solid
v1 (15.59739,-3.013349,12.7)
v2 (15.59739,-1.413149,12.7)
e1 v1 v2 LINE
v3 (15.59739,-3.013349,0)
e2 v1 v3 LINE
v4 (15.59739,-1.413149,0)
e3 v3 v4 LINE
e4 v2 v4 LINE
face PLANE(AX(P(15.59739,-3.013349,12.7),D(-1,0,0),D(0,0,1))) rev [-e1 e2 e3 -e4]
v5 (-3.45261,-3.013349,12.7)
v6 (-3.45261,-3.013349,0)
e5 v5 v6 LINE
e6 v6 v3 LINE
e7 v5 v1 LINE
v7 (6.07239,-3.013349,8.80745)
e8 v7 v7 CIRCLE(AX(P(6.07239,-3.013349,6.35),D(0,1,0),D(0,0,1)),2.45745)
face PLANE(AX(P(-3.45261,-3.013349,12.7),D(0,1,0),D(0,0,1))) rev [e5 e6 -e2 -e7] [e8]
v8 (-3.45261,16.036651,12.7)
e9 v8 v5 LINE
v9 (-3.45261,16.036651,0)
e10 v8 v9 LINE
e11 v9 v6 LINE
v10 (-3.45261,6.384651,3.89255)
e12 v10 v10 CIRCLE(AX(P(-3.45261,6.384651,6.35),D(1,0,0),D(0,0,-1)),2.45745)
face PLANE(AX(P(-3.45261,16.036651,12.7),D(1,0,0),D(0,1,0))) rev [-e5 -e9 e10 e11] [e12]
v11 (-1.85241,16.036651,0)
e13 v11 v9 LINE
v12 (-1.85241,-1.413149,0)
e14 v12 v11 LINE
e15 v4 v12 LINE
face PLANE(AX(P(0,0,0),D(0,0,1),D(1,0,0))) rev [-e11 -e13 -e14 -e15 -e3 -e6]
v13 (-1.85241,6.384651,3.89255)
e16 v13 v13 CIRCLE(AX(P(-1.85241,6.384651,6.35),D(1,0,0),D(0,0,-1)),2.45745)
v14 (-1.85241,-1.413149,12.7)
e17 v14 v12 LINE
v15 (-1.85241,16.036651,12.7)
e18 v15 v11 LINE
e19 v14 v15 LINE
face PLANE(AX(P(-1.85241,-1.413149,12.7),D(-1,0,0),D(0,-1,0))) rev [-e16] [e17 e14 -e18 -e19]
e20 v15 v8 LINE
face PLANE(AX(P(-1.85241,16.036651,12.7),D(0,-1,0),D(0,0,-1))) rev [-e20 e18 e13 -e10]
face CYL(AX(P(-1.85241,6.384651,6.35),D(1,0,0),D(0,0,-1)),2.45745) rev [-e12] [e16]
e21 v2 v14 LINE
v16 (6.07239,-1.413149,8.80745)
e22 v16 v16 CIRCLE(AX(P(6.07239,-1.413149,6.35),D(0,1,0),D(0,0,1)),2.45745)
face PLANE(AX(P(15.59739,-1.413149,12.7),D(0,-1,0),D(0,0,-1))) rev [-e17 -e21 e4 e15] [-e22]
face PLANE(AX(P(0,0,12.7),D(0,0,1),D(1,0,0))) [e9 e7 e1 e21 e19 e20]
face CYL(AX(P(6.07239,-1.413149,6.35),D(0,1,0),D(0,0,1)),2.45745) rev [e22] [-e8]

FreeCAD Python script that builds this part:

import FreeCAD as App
import Part
import Sketcher

V = App.Vector
Q = App.Units.Quantity

doc = App.newDocument("Part")
body = doc.addObject("PartDesign::Body", "Body")

# Sketch on XY plane
sketch1 = body.newObject("Sketcher::SketchObject", "Sketch")
sketch1.AttachmentSupport = (doc.getObject("XY_Plane"), [""])
sketch1.MapMode = "FlatFace"
sketch1.addGeometry(Part.LineSegment(V(-3.5, 16, 0), V(-3.5, -3, 0)), False)
sketch1.addGeometry(Part.LineSegment(V(-3.5, -3, 0), V(15.6, -3, 0)), False)
sketch1.addGeometry(Part.LineSegment(V(15.6, -3, 0), V(15.6, -1.4, 0)), False)
sketch1.addGeometry(Part.LineSegment(V(15.6, -1.4, 0), V(-1.9, -1.4, 0)), False)
sketch1.addGeometry(Part.LineSegment(V(-1.9, -1.4, 0), V(-1.9, 16, 0)), False)
sketch1.addGeometry(Part.LineSegment(V(-1.9, 16, 0), V(-3.5, 16, 0)), False)
sketch1.addConstraint(Sketcher.Constraint("Coincident", 0, 2, 1, 1))
sketch1.addConstraint(Sketcher.Constraint("Coincident", 1, 2, 2, 1))
sketch1.addConstraint(Sketcher.Constraint("Coincident", 2, 2, 3, 1))
sketch1.addConstraint(Sketcher.Constraint("Coincident", 3, 2, 4, 1))
sketch1.addConstraint(Sketcher.Constraint("Coincident", 4, 2, 5, 1))
sketch1.addConstraint(Sketcher.Constraint("Coincident", 5, 2, 0, 1))
sketch1.addConstraint(Sketcher.Constraint("Vertical", 0))
sketch1.addConstraint(Sketcher.Constraint("Horizontal", 1))
sketch1.addConstraint(Sketcher.Constraint("Vertical", 2))
sketch1.addConstraint(Sketcher.Constraint("Horizontal", 3))
sketch1.addConstraint(Sketcher.Constraint("Vertical", 4))
sketch1.addConstraint(Sketcher.Constraint("Horizontal", 5))
sketch1.addConstraint(Sketcher.Constraint("Equal", 1, 0))
sketch1.addConstraint(Sketcher.Constraint("Equal", 5, 2))
sketch1.addConstraint(Sketcher.Constraint("DistanceX", 1, 1, 1, 2, Q("0.75 in")))
sketch1.addConstraint(Sketcher.Constraint("DistanceX", 3, 2, 3, 1, Q("0.687 in")))
sketch1.addConstraint(Sketcher.Constraint("DistanceX", 0, 2, -1, 1, Q("3.45261 mm")))
sketch1.addConstraint(Sketcher.Constraint("DistanceY", 0, 2, -1, 1, Q("3.013349 mm")))
pad1 = body.newObject("PartDesign::Pad", "Pad")
pad1.Profile = sketch1
pad1.Length = Q("0.5 in")

# Sketch on XZ plane
sketch2 = body.newObject("Sketcher::SketchObject", "Sketch001")
sketch2.AttachmentSupport = (doc.getObject("XZ_Plane"), [""])
sketch2.MapMode = "FlatFace"
sketch2.AttachmentOffset = App.Placement(V(0, 0, 1.413149), App.Rotation())
sketch2.addGeometry(Part.Circle(V(6.1, 6.3, 0), V(0, 0, 1), 2.5), False)
sketch2.addConstraint(Sketcher.Constraint("Diameter", 0, Q("0.1935 in")))
sketch2.addConstraint(Sketcher.Constraint("DistanceY", -1, 1, 0, 3, Q("0.25 in")))
sketch2.addConstraint(Sketcher.Constraint("DistanceX", -1, 1, 0, 3, Q("6.07239 mm")))
doc.recompute()
hole = body.newObject("PartDesign::Hole", "Hole")
hole.Profile = sketch2
hole.ThreadType = "None"
hole.Diameter = Q("0.1935 in")
hole.DepthType = "ThroughAll"
hole.Reversed = True

# Sketch on YZ plane
sketch3 = body.newObject("Sketcher::SketchObject", "Sketch002")
sketch3.AttachmentSupport = (doc.getObject("YZ_Plane"), [""])
sketch3.MapMode = "FlatFace"
sketch3.AttachmentOffset = App.Placement(V(0, 0, -1.85241), App.Rotation())
sketch3.addGeometry(Part.Circle(V(6.4, 6.3, 0), V(0, 0, 1), 2.5), False)
sketch3.addConstraint(Sketcher.Constraint("Diameter", 0, Q("0.1935 in")))
sketch3.addConstraint(Sketcher.Constraint("DistanceY", -1, 1, 0, 3, Q("0.25 in")))
sketch3.addConstraint(Sketcher.Constraint("DistanceX", -1, 1, 0, 3, Q("6.384651 mm")))
doc.recompute()
hole2 = body.newObject("PartDesign::Hole", "Hole001")
hole2.Profile = sketch3
hole2.ThreadType = "None"
hole2.Diameter = Q("0.1935 in")
hole2.DepthType = "ThroughAll"

doc.recompute()
